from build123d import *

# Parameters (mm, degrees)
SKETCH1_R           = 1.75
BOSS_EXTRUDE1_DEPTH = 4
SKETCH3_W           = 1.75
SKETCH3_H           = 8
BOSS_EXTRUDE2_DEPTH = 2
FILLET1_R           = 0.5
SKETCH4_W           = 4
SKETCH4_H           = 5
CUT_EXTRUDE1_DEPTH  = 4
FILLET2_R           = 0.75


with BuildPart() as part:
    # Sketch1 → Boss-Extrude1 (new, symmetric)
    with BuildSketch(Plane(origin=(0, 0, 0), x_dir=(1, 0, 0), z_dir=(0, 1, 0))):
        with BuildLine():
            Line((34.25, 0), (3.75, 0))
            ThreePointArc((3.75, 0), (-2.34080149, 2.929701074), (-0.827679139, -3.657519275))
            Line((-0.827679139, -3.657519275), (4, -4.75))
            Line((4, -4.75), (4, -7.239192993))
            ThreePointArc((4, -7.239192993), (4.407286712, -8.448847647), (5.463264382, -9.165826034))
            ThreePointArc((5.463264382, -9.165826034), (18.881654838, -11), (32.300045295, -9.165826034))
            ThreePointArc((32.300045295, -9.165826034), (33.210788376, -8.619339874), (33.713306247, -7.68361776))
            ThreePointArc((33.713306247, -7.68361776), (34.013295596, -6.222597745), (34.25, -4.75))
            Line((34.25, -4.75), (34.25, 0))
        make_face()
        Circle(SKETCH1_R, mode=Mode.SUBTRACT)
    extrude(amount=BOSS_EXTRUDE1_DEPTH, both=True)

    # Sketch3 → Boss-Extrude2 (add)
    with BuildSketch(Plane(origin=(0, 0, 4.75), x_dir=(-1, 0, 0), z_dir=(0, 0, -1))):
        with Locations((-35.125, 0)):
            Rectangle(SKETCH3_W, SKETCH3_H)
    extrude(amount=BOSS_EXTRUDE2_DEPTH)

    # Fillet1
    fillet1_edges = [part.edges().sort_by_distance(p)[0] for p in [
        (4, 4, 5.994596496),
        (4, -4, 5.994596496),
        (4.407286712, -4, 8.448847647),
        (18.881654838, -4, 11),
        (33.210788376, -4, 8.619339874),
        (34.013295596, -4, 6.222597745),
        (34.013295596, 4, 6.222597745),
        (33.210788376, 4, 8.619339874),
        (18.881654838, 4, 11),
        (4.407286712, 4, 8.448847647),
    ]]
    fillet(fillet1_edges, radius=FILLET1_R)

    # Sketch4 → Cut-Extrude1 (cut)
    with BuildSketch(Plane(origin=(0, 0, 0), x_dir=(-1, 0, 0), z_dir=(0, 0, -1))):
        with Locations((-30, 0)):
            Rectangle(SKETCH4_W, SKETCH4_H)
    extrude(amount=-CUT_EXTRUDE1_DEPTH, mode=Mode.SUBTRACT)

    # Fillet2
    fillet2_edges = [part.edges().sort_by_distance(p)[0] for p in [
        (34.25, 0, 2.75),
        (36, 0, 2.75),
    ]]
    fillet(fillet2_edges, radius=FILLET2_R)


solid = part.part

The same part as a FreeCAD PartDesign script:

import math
import FreeCAD as App
import Part
import Sketcher

V = App.Vector
Q = App.Units.Quantity


def edges_at(feature, points):
    """Names of the edges that pass closest to the given points."""
    edges = feature.Shape.Edges
    near = lambda p: min(range(len(edges)), key=lambda i: edges[i].distToShape(Part.Vertex(*p))[0])
    return sorted({f"Edge{near(p) + 1}" for p in points})


def add_polygon(sketch, points):
    """Adds a closed chain of lines whose ends are joined by coincident constraints."""
    first, n = sketch.GeometryCount, len(points)
    for a, b in zip(points, points[1:] + points[:1]):
        sketch.addGeometry(Part.LineSegment(App.Vector(*a, 0), App.Vector(*b, 0)), False)
    for i in range(n):
        sketch.addConstraint(Sketcher.Constraint("Coincident", first + i, 2, first + (i + 1) % n, 1))

doc = App.newDocument("Part")
body = doc.addObject("PartDesign::Body", "Body")

sketch1 = body.newObject("Sketcher::SketchObject", "Sketch")
sketch1.AttachmentSupport = (doc.getObject("XZ_Plane"), [""])
sketch1.MapMode = "FlatFace"
sketch1.addGeometry([
    Part.LineSegment(V(34.25, 0, 0), V(3.75, 0, 0)),
    Part.ArcOfCircle(Part.Circle(V(0, 0, 0), V(0, 0, 1), 3.75), math.radians(102.750999), math.radians(360)),
    Part.LineSegment(V(-0.827679, 3.657519, 0), V(4, 4.75, 0)),
    Part.LineSegment(V(4, 4.75, 0), V(4, 7.239193, 0)),
    Part.ArcOfCircle(Part.Circle(V(6, 7.239193, 0), V(0, 0, 1), 2), math.radians(105.567165), math.radians(180)),
    Part.ArcOfCircle(Part.Circle(V(18.881655, -39, 0), V(0, 0, 1), 50), math.radians(74.432835), math.radians(105.567165)),
    Part.ArcOfCircle(Part.Circle(V(31.76331, 7.239193, 0), V(0, 0, 1), 2), math.radians(12.83901), math.radians(74.432835)),
    Part.ArcOfCircle(Part.Circle(V(0, 0, 0), V(0, 0, 1), 34.577811), math.radians(7.895765), math.radians(12.83901)),
    Part.LineSegment(V(34.25, 4.75, 0), V(34.25, 0, 0)),
    Part.Circle(V(0, 0, 0), V(0, 0, 1), 1.75),
], False)
sketch1.addConstraint([
    Sketcher.Constraint("Coincident", 0, 2, 1, 2),
    Sketcher.Constraint("Tangent", 1, 1, 2, 1),
    Sketcher.Constraint("Coincident", 2, 2, 3, 1),
    Sketcher.Constraint("Tangent", 3, 2, 4, 2),
    Sketcher.Constraint("Tangent", 4, 1, 5, 2),
    Sketcher.Constraint("Tangent", 5, 1, 6, 2),
    Sketcher.Constraint("Tangent", 6, 1, 7, 2),
    Sketcher.Constraint("Coincident", 7, 1, 8, 1),
    Sketcher.Constraint("Coincident", 8, 2, 0, 1),
    Sketcher.Constraint("Horizontal", 0),
    Sketcher.Constraint("Vertical", 3),
    Sketcher.Constraint("Vertical", 8),
    Sketcher.Constraint("Coincident", 1, 3, -1, 1),
    Sketcher.Constraint("Coincident", 7, 3, -1, 1),
    Sketcher.Constraint("Coincident", 9, 3, -1, 1),
    Sketcher.Constraint("Equal", 4, 6),
    Sketcher.Constraint("PointOnObject", 0, 2, -1),
    Sketcher.Constraint("Horizontal", 4, 3, 6, 3),
    Sketcher.Constraint("Horizontal", 2, 2, 7, 1),
    Sketcher.Constraint("Radius", 4, Q("2 mm")),
    Sketcher.Constraint("Radius", 5, Q("50 mm")),
    Sketcher.Constraint("Diameter", 9, Q("3.5 mm")),
    Sketcher.Constraint("Radius", 1, Q("3.75 mm")),
    Sketcher.Constraint("DistanceX", 0, 2, 0, 1, Q("30.5 mm")),
    Sketcher.Constraint("DistanceX", -1, 1, 4, 3, Q("6 mm")),
    Sketcher.Constraint("DistanceY", 5, 3, -1, 1, Q("39 mm")),
    Sketcher.Constraint("DistanceY", 8, 2, 8, 1, Q("4.75 mm")),
])
pad1 = body.newObject("PartDesign::Pad", "Pad")
pad1.Profile = sketch1
pad1.Length = 8
pad1.Midplane = True

sketch2 = body.newObject("Sketcher::SketchObject", "Sketch001")
sketch2.AttachmentSupport = (doc.getObject("XY_Plane"), [""])
sketch2.MapMode = "FlatFace"
sketch2.AttachmentOffset = App.Placement(V(0, 0, 4.75), App.Rotation())
add_polygon(sketch2, [(36, 4), (36, -4), (34.25, -4), (34.25, 4)])
sketch2.addConstraint([
    Sketcher.Constraint("Vertical", 0),
    Sketcher.Constraint("Horizontal", 1),
    Sketcher.Constraint("Vertical", 2),
    Sketcher.Constraint("Horizontal", 3),
    Sketcher.Constraint("DistanceY", 0, 2, 0, 1, Q("8 mm")),
    Sketcher.Constraint("DistanceX", -1, 1, 0, 2, Q("36 mm")),
    Sketcher.Constraint("DistanceY", 0, 2, -1, 1, Q("4 mm")),
    Sketcher.Constraint("DistanceX", 1, 2, 1, 1, Q("1.75 mm")),
])
pad2 = body.newObject("PartDesign::Pad", "Pad001")
pad2.Profile = sketch2
pad2.Length = 2
pad2.Reversed = True
doc.recompute()

fillet = body.newObject("PartDesign::Fillet", "Fillet")
fillet.Base = (pad2, edges_at(pad2, [
    (4, 4, 5.995),
    (4, -4, 5.995),
    (4.407, -4, 8.449),
    (18.882, -4, 11),
    (33.211, -4, 8.619),
    (34.013, -4, 6.223),
    (34.013, 4, 6.223),
    (33.211, 4, 8.619),
    (18.882, 4, 11),
    (4.407, 4, 8.449),
]))
fillet.Radius = 0.5

sketch3 = body.newObject("Sketcher::SketchObject", "Sketch002")
sketch3.AttachmentSupport = (doc.getObject("XY_Plane"), [""])
sketch3.MapMode = "FlatFace"
add_polygon(sketch3, [(32, 2.5), (32, -2.5), (28, -2.5), (28, 2.5)])
sketch3.addConstraint([
    Sketcher.Constraint("Vertical", 0),
    Sketcher.Constraint("Horizontal", 1),
    Sketcher.Constraint("Vertical", 2),
    Sketcher.Constraint("Horizontal", 3),
    Sketcher.Constraint("DistanceX", 1, 2, 1, 1, Q("4 mm")),
    Sketcher.Constraint("DistanceY", 0, 2, 0, 1, Q("5 mm")),
    Sketcher.Constraint("DistanceX", -1, 1, 0, 2, Q("32 mm")),
    Sketcher.Constraint("DistanceY", 0, 2, -1, 1, Q("2.5 mm")),
])
pocket1 = body.newObject("PartDesign::Pocket", "Pocket")
pocket1.Profile = sketch3
pocket1.Length = 4
pocket1.Reversed = True
doc.recompute()

fillet2 = body.newObject("PartDesign::Fillet", "Fillet001")
fillet2.Base = (pocket1, edges_at(pocket1, [(34.25, 0, 2.75), (36, 0, 2.75)]))
fillet2.Radius = 0.75

doc.recompute()
